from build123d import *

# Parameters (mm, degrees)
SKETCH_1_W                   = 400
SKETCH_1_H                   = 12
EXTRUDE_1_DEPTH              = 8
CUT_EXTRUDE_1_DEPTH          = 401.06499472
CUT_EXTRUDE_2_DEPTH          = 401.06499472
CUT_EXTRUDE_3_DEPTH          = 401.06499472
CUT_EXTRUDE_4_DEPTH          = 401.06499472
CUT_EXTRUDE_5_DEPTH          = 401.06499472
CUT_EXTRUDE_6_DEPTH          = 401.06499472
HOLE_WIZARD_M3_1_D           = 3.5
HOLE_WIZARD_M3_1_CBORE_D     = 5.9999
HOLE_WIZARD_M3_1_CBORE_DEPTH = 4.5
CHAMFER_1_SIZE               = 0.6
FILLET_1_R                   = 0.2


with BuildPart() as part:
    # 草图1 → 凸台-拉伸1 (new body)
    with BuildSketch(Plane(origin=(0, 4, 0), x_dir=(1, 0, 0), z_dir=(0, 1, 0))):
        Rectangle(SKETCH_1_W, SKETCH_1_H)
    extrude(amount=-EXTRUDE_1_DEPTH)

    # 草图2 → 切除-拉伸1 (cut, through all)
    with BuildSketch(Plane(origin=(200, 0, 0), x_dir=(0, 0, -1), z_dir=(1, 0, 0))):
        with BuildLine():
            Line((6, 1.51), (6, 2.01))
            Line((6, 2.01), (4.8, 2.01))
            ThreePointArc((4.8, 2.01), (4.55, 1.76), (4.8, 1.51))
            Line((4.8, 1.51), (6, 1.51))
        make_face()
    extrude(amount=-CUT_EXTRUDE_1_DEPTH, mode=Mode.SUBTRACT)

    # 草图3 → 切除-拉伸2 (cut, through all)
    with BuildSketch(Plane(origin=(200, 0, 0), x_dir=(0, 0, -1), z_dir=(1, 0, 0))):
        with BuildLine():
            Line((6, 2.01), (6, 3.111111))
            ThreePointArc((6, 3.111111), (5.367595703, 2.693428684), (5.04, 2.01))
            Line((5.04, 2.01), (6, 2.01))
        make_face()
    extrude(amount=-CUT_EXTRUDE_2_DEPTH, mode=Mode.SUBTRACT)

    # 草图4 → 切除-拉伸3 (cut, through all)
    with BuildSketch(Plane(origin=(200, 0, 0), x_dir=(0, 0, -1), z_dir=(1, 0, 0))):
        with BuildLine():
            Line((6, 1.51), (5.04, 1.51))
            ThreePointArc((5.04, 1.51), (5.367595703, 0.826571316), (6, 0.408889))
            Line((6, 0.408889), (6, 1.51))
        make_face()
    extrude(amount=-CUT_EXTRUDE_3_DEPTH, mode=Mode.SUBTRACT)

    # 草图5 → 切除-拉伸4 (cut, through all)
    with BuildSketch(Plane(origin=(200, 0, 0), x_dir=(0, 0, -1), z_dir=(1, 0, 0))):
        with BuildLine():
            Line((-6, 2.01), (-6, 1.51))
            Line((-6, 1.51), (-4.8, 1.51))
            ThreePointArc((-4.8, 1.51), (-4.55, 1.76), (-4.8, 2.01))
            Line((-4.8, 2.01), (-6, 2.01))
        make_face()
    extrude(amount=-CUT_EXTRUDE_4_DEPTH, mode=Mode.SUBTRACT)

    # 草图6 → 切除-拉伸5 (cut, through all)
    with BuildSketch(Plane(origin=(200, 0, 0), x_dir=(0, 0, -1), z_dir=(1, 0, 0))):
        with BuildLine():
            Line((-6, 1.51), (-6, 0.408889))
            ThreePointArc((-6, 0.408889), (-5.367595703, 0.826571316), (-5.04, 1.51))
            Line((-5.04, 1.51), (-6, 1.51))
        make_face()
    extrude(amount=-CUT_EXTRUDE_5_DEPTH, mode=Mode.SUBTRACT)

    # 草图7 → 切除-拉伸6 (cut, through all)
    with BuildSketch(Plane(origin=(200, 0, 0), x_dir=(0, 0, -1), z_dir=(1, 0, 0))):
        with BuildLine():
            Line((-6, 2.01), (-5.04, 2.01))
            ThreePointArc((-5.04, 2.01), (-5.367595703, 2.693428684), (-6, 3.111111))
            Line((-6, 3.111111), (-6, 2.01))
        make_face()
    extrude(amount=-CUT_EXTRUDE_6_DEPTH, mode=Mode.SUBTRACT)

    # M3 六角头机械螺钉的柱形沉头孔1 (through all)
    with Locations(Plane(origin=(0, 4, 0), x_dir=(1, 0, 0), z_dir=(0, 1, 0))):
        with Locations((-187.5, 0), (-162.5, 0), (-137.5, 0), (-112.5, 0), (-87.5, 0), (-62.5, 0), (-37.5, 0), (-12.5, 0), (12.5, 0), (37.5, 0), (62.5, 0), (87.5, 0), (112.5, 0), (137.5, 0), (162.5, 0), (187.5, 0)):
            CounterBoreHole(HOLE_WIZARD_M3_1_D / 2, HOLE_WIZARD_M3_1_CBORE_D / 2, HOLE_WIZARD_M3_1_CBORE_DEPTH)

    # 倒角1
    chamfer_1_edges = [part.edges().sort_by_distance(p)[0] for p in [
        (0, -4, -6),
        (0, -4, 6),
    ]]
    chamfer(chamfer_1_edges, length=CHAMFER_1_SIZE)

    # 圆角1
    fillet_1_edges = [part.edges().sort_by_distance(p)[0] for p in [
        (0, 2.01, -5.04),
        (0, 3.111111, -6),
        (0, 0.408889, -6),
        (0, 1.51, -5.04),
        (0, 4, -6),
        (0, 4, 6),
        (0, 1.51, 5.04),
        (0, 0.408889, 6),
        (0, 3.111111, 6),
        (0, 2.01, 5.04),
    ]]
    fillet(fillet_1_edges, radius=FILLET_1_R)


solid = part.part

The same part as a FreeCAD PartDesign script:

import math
import FreeCAD as App
import Part
import Sketcher
from FreeCAD import Vector
Q = App.Units.Quantity


def edges_at(feature, points):
    """Names of the edges that pass closest to the given points."""
    edges = feature.Shape.Edges
    near = lambda p: min(range(len(edges)), key=lambda i: edges[i].distToShape(Part.Vertex(*p))[0])
    return sorted({f"Edge{near(p) + 1}" for p in points})


def add_polygon(sketch, points):
    """Adds a closed chain of lines whose ends are joined by coincident constraints."""
    first, n = sketch.GeometryCount, len(points)
    for a, b in zip(points, points[1:] + points[:1]):
        sketch.addGeometry(Part.LineSegment(App.Vector(*a, 0), App.Vector(*b, 0)), False)
    for i in range(n):
        sketch.addConstraint(Sketcher.Constraint("Coincident", first + i, 2, first + (i + 1) % n, 1))

doc = App.newDocument("Part")
body = doc.addObject("PartDesign::Body", "Body")

sketch1 = doc.addObject("Sketcher::SketchObject", "Sketch")
body.addObject(sketch1)
sketch1.AttachmentSupport = (doc.XZ_Plane, [""])
sketch1.MapMode = "FlatFace"
sketch1.AttachmentOffset = App.Placement(Vector(0, 0, -4), App.Rotation())
add_polygon(sketch1, [(-200, -6), (-200, 6), (200, 6), (200, -6)])
sketch1.addConstraint(Sketcher.Constraint("Vertical", 0))
sketch1.addConstraint(Sketcher.Constraint("Horizontal", 1))
sketch1.addConstraint(Sketcher.Constraint("Vertical", 2))
sketch1.addConstraint(Sketcher.Constraint("Horizontal", 3))
sketch1.addConstraint(Sketcher.Constraint("Symmetric", 0, 2, 2, 2, -1, 1))
sketch1.addConstraint(Sketcher.Constraint("DistanceX", 1, 1, 1, 2, Q("400 mm")))
sketch1.addConstraint(Sketcher.Constraint("DistanceY", 0, 1, 0, 2, Q("12 mm")))
pad1 = doc.addObject("PartDesign::Pad", "Pad")
body.addObject(pad1)
pad1.Profile = sketch1
pad1.Length = 8

sketch2 = doc.addObject("Sketcher::SketchObject", "Sketch001")
body.addObject(sketch2)
sketch2.AttachmentSupport = (doc.YZ_Plane, [""])
sketch2.MapMode = "FlatFace"
sketch2.AttachmentOffset = App.Placement(Vector(0, 0, 200), App.Rotation())
sketch2.addGeometry(Part.LineSegment(Vector(1.51, -6, 0), Vector(2.01, -6, 0)), False)
sketch2.addGeometry(Part.LineSegment(Vector(2.01, -6, 0), Vector(2.01, -4.8, 0)), False)
sketch2.addGeometry(Part.ArcOfCircle(Part.Circle(Vector(1.76, -4.8, 0), Vector(0, 0, 1), 0.25), math.radians(0), math.radians(180)), False)
sketch2.addGeometry(Part.LineSegment(Vector(1.51, -4.8, 0), Vector(1.51, -6, 0)), False)
sketch2.addConstraint(Sketcher.Constraint("Coincident", 0, 2, 1, 1))
sketch2.addConstraint(Sketcher.Constraint("Tangent", 1, 2, 2, 1))
sketch2.addConstraint(Sketcher.Constraint("Tangent", 2, 2, 3, 1))
sketch2.addConstraint(Sketcher.Constraint("Coincident", 3, 2, 0, 1))
sketch2.addConstraint(Sketcher.Constraint("Horizontal", 0))
sketch2.addConstraint(Sketcher.Constraint("Vertical", 1))
sketch2.addConstraint(Sketcher.Constraint("Vertical", 3))
sketch2.addConstraint(Sketcher.Constraint("Radius", 2, Q("0.25 mm")))
sketch2.addConstraint(Sketcher.Constraint("DistanceY", 1, 1, 1, 2, Q("1.2 mm")))
sketch2.addConstraint(Sketcher.Constraint("DistanceY", 0, 2, -1, 1, Q("6 mm")))
sketch2.addConstraint(Sketcher.Constraint("DistanceX", -1, 1, 2, 3, Q("1.76 mm")))
pocket1 = doc.addObject("PartDesign::Pocket", "Pocket")
body.addObject(pocket1)
pocket1.Profile = sketch2
pocket1.Type = "ThroughAll"

sketch3 = doc.addObject("Sketcher::SketchObject", "Sketch002")
body.addObject(sketch3)
sketch3.AttachmentSupport = (doc.YZ_Plane, [""])
sketch3.MapMode = "FlatFace"
sketch3.AttachmentOffset = App.Placement(Vector(0, 0, 200), App.Rotation())
sketch3.addGeometry(Part.LineSegment(Vector(2.01, -6, 0), Vector(3.111111, -6, 0)), False)
sketch3.addGeometry(Part.ArcOfCircle(Part.Circle(Vector(1.76, -6.43823, 0), Vector(0, 0, 1), 1.420404), math.radians(17.970348), math.radians(79.862775)), False)
sketch3.addGeometry(Part.LineSegment(Vector(2.01, -5.04, 0), Vector(2.01, -6, 0)), False)
sketch3.addConstraint(Sketcher.Constraint("Coincident", 0, 2, 1, 1))
sketch3.addConstraint(Sketcher.Constraint("Coincident", 1, 2, 2, 1))
sketch3.addConstraint(Sketcher.Constraint("Coincident", 2, 2, 0, 1))
sketch3.addConstraint(Sketcher.Constraint("Horizontal", 0))
sketch3.addConstraint(Sketcher.Constraint("Vertical", 2))
sketch3.addConstraint(Sketcher.Constraint("DistanceY", 0, 2, -1, 1, Q("6 mm")))
sketch3.addConstraint(Sketcher.Constraint("DistanceY", 2, 2, 2, 1, Q("0.96 mm")))
sketch3.addConstraint(Sketcher.Constraint("DistanceX", -1, 1, 1, 3, Q("1.76 mm")))
sketch3.addConstraint(Sketcher.Constraint("DistanceX", -1, 1, 1, 2, Q("2.01 mm")))
sketch3.addConstraint(Sketcher.Constraint("Radius", 1, Q("1.420404 mm")))
pocket2 = doc.addObject("PartDesign::Pocket", "Pocket001")
body.addObject(pocket2)
pocket2.Profile = sketch3
pocket2.Type = "ThroughAll"

sketch4 = doc.addObject("Sketcher::SketchObject", "Sketch003")
body.addObject(sketch4)
sketch4.AttachmentSupport = (doc.YZ_Plane, [""])
sketch4.MapMode = "FlatFace"
sketch4.AttachmentOffset = App.Placement(Vector(0, 0, 200), App.Rotation())
sketch4.addGeometry(Part.LineSegment(Vector(1.51, -6, 0), Vector(1.51, -5.04, 0)), False)
sketch4.addGeometry(Part.ArcOfCircle(Part.Circle(Vector(1.76, -6.43823, 0), Vector(0, 0, 1), 1.420404), math.radians(100.137225), math.radians(162.029652)), False)
sketch4.addGeometry(Part.LineSegment(Vector(0.408889, -6, 0), Vector(1.51, -6, 0)), False)
sketch4.addConstraint(Sketcher.Constraint("Coincident", 0, 2, 1, 1))
sketch4.addConstraint(Sketcher.Constraint("Coincident", 1, 2, 2, 1))
sketch4.addConstraint(Sketcher.Constraint("Coincident", 2, 2, 0, 1))
sketch4.addConstraint(Sketcher.Constraint("Vertical", 0))
sketch4.addConstraint(Sketcher.Constraint("Horizontal", 2))
sketch4.addConstraint(Sketcher.Constraint("DistanceY", 1, 2, -1, 1, Q("6 mm")))
sketch4.addConstraint(Sketcher.Constraint("DistanceY", 0, 1, 0, 2, Q("0.96 mm")))
sketch4.addConstraint(Sketcher.Constraint("DistanceX", -1, 1, 1, 3, Q("1.76 mm")))
sketch4.addConstraint(Sketcher.Constraint("DistanceX", -1, 1, 0, 2, Q("1.51 mm")))
sketch4.addConstraint(Sketcher.Constraint("Radius", 1, Q("1.420404 mm")))
pocket3 = doc.addObject("PartDesign::Pocket", "Pocket002")
body.addObject(pocket3)
pocket3.Profile = sketch4
pocket3.Type = "ThroughAll"

sketch5 = doc.addObject("Sketcher::SketchObject", "Sketch004")
body.addObject(sketch5)
sketch5.AttachmentSupport = (doc.YZ_Plane, [""])
sketch5.MapMode = "FlatFace"
sketch5.AttachmentOffset = App.Placement(Vector(0, 0, 200), App.Rotation())
sketch5.addGeometry(Part.LineSegment(Vector(2.01, 6, 0), Vector(1.51, 6, 0)), False)
sketch5.addGeometry(Part.LineSegment(Vector(1.51, 6, 0), Vector(1.51, 4.8, 0)), False)
sketch5.addGeometry(Part.ArcOfCircle(Part.Circle(Vector(1.76, 4.8, 0), Vector(0, 0, 1), 0.25), math.radians(180), math.radians(360)), False)
sketch5.addGeometry(Part.LineSegment(Vector(2.01, 4.8, 0), Vector(2.01, 6, 0)), False)
sketch5.addConstraint(Sketcher.Constraint("Coincident", 0, 2, 1, 1))
sketch5.addConstraint(Sketcher.Constraint("Tangent", 1, 2, 2, 1))
sketch5.addConstraint(Sketcher.Constraint("Tangent", 2, 2, 3, 1))
sketch5.addConstraint(Sketcher.Constraint("Coincident", 3, 2, 0, 1))
sketch5.addConstraint(Sketcher.Constraint("Horizontal", 0))
sketch5.addConstraint(Sketcher.Constraint("Vertical", 1))
sketch5.addConstraint(Sketcher.Constraint("Vertical", 3))
sketch5.addConstraint(Sketcher.Constraint("Radius", 2, Q("0.25 mm")))
sketch5.addConstraint(Sketcher.Constraint("DistanceY", 1, 2, 1, 1, Q("1.2 mm")))
sketch5.addConstraint(Sketcher.Constraint("DistanceY", -1, 1, 0, 2, Q("6 mm")))
sketch5.addConstraint(Sketcher.Constraint("DistanceX", -1, 1, 2, 3, Q("1.76 mm")))
pocket4 = doc.addObject("PartDesign::Pocket", "Pocket003")
body.addObject(pocket4)
pocket4.Profile = sketch5
pocket4.Type = "ThroughAll"

sketch6 = doc.addObject("Sketcher::SketchObject", "Sketch005")
body.addObject(sketch6)
sketch6.AttachmentSupport = (doc.YZ_Plane, [""])
sketch6.MapMode = "FlatFace"
sketch6.AttachmentOffset = App.Placement(Vector(0, 0, 200), App.Rotation())
sketch6.addGeometry(Part.LineSegment(Vector(1.51, 6, 0), Vector(0.408889, 6, 0)), False)
sketch6.addGeometry(Part.ArcOfCircle(Part.Circle(Vector(1.76, 6.43823, 0), Vector(0, 0, 1), 1.420404), math.radians(-162.029652), math.radians(-100.137225)), False)
sketch6.addGeometry(Part.LineSegment(Vector(1.51, 5.04, 0), Vector(1.51, 6, 0)), False)
sketch6.addConstraint(Sketcher.Constraint("Coincident", 0, 2, 1, 1))
sketch6.addConstraint(Sketcher.Constraint("Coincident", 1, 2, 2, 1))
sketch6.addConstraint(Sketcher.Constraint("Coincident", 2, 2, 0, 1))
sketch6.addConstraint(Sketcher.Constraint("Horizontal", 0))
sketch6.addConstraint(Sketcher.Constraint("Vertical", 2))
sketch6.addConstraint(Sketcher.Constraint("DistanceY", -1, 1, 0, 2, Q("6 mm")))
sketch6.addConstraint(Sketcher.Constraint("DistanceY", 2, 1, 2, 2, Q("0.96 mm")))
sketch6.addConstraint(Sketcher.Constraint("DistanceX", -1, 1, 1, 3, Q("1.76 mm")))
sketch6.addConstraint(Sketcher.Constraint("DistanceX", -1, 1, 1, 2, Q("1.51 mm")))
sketch6.addConstraint(Sketcher.Constraint("Radius", 1, Q("1.420404 mm")))
pocket5 = doc.addObject("PartDesign::Pocket", "Pocket004")
body.addObject(pocket5)
pocket5.Profile = sketch6
pocket5.Type = "ThroughAll"

sketch7 = doc.addObject("Sketcher::SketchObject", "Sketch006")
body.addObject(sketch7)
sketch7.AttachmentSupport = (doc.YZ_Plane, [""])
sketch7.MapMode = "FlatFace"
sketch7.AttachmentOffset = App.Placement(Vector(0, 0, 200), App.Rotation())
sketch7.addGeometry(Part.LineSegment(Vector(2.01, 6, 0), Vector(2.01, 5.04, 0)), False)
sketch7.addGeometry(Part.ArcOfCircle(Part.Circle(Vector(1.76, 6.43823, 0), Vector(0, 0, 1), 1.420404), math.radians(-79.862775), math.radians(-17.970348)), False)
sketch7.addGeometry(Part.LineSegment(Vector(3.111111, 6, 0), Vector(2.01, 6, 0)), False)
sketch7.addConstraint(Sketcher.Constraint("Coincident", 0, 2, 1, 1))
sketch7.addConstraint(Sketcher.Constraint("Coincident", 1, 2, 2, 1))
sketch7.addConstraint(Sketcher.Constraint("Coincident", 2, 2, 0, 1))
sketch7.addConstraint(Sketcher.Constraint("Vertical", 0))
sketch7.addConstraint(Sketcher.Constraint("Horizontal", 2))
sketch7.addConstraint(Sketcher.Constraint("DistanceY", -1, 1, 1, 2, Q("6 mm")))
sketch7.addConstraint(Sketcher.Constraint("DistanceY", 0, 2, 0, 1, Q("0.96 mm")))
sketch7.addConstraint(Sketcher.Constraint("DistanceX", -1, 1, 1, 3, Q("1.76 mm")))
sketch7.addConstraint(Sketcher.Constraint("DistanceX", -1, 1, 0, 2, Q("2.01 mm")))
sketch7.addConstraint(Sketcher.Constraint("Radius", 1, Q("1.420404 mm")))
pocket6 = doc.addObject("PartDesign::Pocket", "Pocket005")
body.addObject(pocket6)
pocket6.Profile = sketch7
pocket6.Type = "ThroughAll"

sketch8 = doc.addObject("Sketcher::SketchObject", "Sketch007")
body.addObject(sketch8)
sketch8.AttachmentSupport = (doc.XZ_Plane, [""])
sketch8.MapMode = "FlatFace"
sketch8.AttachmentOffset = App.Placement(Vector(0, 0, -4), App.Rotation())
sketch8.addGeometry(Part.Circle(Vector(-187.5, 0, 0), Vector(0, 0, 1), 1.75), False)
sketch8.addGeometry(Part.Circle(Vector(-162.5, 0, 0), Vector(0, 0, 1), 1.75), False)
sketch8.addGeometry(Part.Circle(Vector(-137.5, 0, 0), Vector(0, 0, 1), 1.75), False)
sketch8.addGeometry(Part.Circle(Vector(-112.5, 0, 0), Vector(0, 0, 1), 1.75), False)
sketch8.addGeometry(Part.Circle(Vector(-87.5, 0, 0), Vector(0, 0, 1), 1.75), False)
sketch8.addGeometry(Part.Circle(Vector(-62.5, 0, 0), Vector(0, 0, 1), 1.75), False)
sketch8.addGeometry(Part.Circle(Vector(-37.5, 0, 0), Vector(0, 0, 1), 1.75), False)
sketch8.addGeometry(Part.Circle(Vector(-12.5, 0, 0), Vector(0, 0, 1), 1.75), False)
sketch8.addGeometry(Part.Circle(Vector(12.5, 0, 0), Vector(0, 0, 1), 1.75), False)
sketch8.addGeometry(Part.Circle(Vector(37.5, 0, 0), Vector(0, 0, 1), 1.75), False)
sketch8.addGeometry(Part.Circle(Vector(62.5, 0, 0), Vector(0, 0, 1), 1.75), False)
sketch8.addGeometry(Part.Circle(Vector(87.5, 0, 0), Vector(0, 0, 1), 1.75), False)
sketch8.addGeometry(Part.Circle(Vector(112.5, 0, 0), Vector(0, 0, 1), 1.75), False)
sketch8.addGeometry(Part.Circle(Vector(137.5, 0, 0), Vector(0, 0, 1), 1.75), False)
sketch8.addGeometry(Part.Circle(Vector(162.5, 0, 0), Vector(0, 0, 1), 1.75), False)
sketch8.addGeometry(Part.Circle(Vector(187.5, 0, 0), Vector(0, 0, 1), 1.75), False)
sketch8.addConstraint(Sketcher.Constraint("Equal", 0, 1))
sketch8.addConstraint(Sketcher.Constraint("Equal", 1, 2))
sketch8.addConstraint(Sketcher.Constraint("Equal", 2, 3))
sketch8.addConstraint(Sketcher.Constraint("Equal", 3, 4))
sketch8.addConstraint(Sketcher.Constraint("Equal", 4, 5))
sketch8.addConstraint(Sketcher.Constraint("Equal", 5, 6))
sketch8.addConstraint(Sketcher.Constraint("Equal", 6, 7))
sketch8.addConstraint(Sketcher.Constraint("Equal", 7, 8))
sketch8.addConstraint(Sketcher.Constraint("Equal", 8, 9))
sketch8.addConstraint(Sketcher.Constraint("Equal", 9, 10))
sketch8.addConstraint(Sketcher.Constraint("Equal", 10, 11))
sketch8.addConstraint(Sketcher.Constraint("Equal", 11, 12))
sketch8.addConstraint(Sketcher.Constraint("Equal", 12, 13))
sketch8.addConstraint(Sketcher.Constraint("Equal", 13, 14))
sketch8.addConstraint(Sketcher.Constraint("Equal", 14, 15))
sketch8.addConstraint(Sketcher.Constraint("Symmetric", 7, 3, 8, 3, -1, 1))
sketch8.addConstraint(Sketcher.Constraint("Symmetric", 6, 3, 9, 3, -1, 1))
sketch8.addConstraint(Sketcher.Constraint("Symmetric", 5, 3, 10, 3, -1, 1))
sketch8.addConstraint(Sketcher.Constraint("Symmetric", 4, 3, 11, 3, -1, 1))
sketch8.addConstraint(Sketcher.Constraint("Symmetric", 3, 3, 12, 3, -1, 1))
sketch8.addConstraint(Sketcher.Constraint("Symmetric", 2, 3, 13, 3, -1, 1))
sketch8.addConstraint(Sketcher.Constraint("Symmetric", 1, 3, 14, 3, -1, 1))
sketch8.addConstraint(Sketcher.Constraint("Symmetric", 0, 3, 15, 3, -1, 1))
sketch8.addConstraint(Sketcher.Constraint("PointOnObject", 0, 3, -1))
sketch8.addConstraint(Sketcher.Constraint("PointOnObject", 1, 3, -1))
sketch8.addConstraint(Sketcher.Constraint("PointOnObject", 2, 3, -1))
sketch8.addConstraint(Sketcher.Constraint("PointOnObject", 3, 3, -1))
sketch8.addConstraint(Sketcher.Constraint("PointOnObject", 4, 3, -1))
sketch8.addConstraint(Sketcher.Constraint("PointOnObject", 5, 3, -1))
sketch8.addConstraint(Sketcher.Constraint("PointOnObject", 6, 3, -1))
sketch8.addConstraint(Sketcher.Constraint("PointOnObject", 7, 3, -1))
sketch8.addConstraint(Sketcher.Constraint("Diameter", 0, Q("3.5 mm")))
sketch8.addConstraint(Sketcher.Constraint("DistanceX", 0, 3, 1, 3, Q("25 mm")))
sketch8.addConstraint(Sketcher.Constraint("DistanceX", 1, 3, 2, 3, Q("25 mm")))
sketch8.addConstraint(Sketcher.Constraint("DistanceX", 2, 3, 3, 3, Q("25 mm")))
sketch8.addConstraint(Sketcher.Constraint("DistanceX", 3, 3, 4, 3, Q("25 mm")))
sketch8.addConstraint(Sketcher.Constraint("DistanceX", 4, 3, 5, 3, Q("25 mm")))
sketch8.addConstraint(Sketcher.Constraint("DistanceX", 5, 3, 6, 3, Q("25 mm")))
sketch8.addConstraint(Sketcher.Constraint("DistanceX", 6, 3, 7, 3, Q("25 mm")))
sketch8.addConstraint(Sketcher.Constraint("DistanceX", 7, 3, 8, 3, Q("25 mm")))
doc.recompute()
hole = doc.addObject("PartDesign::Hole", "Hole")
body.addObject(hole)
hole.Profile = sketch8
hole.ThreadType = "None"
hole.Diameter = 3.5
hole.DepthType = "ThroughAll"
hole.HoleCutType = "Counterbore"
hole.HoleCutDiameter = 5.9999
hole.HoleCutDepth = 4.5
hole.Reversed = True
doc.recompute()

chamfer = doc.addObject("PartDesign::Chamfer", "Chamfer")
body.addObject(chamfer)
chamfer.Base = (hole, edges_at(hole, [(0, -4, -6), (0, -4, 6)]))
chamfer.Size = 0.6
doc.recompute()

fillet = doc.addObject("PartDesign::Fillet", "Fillet")
body.addObject(fillet)
fillet.Base = (chamfer, edges_at(chamfer, [
    (0, 2.01, -5.04),
    (0, 3.111, -6),
    (0, 0.409, -6),
    (0, 1.51, -5.04),
    (0, 4, -6),
    (0, 4, 6),
    (0, 1.51, 5.04),
    (0, 0.409, 6),
    (0, 3.111, 6),
    (0, 2.01, 5.04),
]))
fillet.Radius = 0.2

doc.recompute()
